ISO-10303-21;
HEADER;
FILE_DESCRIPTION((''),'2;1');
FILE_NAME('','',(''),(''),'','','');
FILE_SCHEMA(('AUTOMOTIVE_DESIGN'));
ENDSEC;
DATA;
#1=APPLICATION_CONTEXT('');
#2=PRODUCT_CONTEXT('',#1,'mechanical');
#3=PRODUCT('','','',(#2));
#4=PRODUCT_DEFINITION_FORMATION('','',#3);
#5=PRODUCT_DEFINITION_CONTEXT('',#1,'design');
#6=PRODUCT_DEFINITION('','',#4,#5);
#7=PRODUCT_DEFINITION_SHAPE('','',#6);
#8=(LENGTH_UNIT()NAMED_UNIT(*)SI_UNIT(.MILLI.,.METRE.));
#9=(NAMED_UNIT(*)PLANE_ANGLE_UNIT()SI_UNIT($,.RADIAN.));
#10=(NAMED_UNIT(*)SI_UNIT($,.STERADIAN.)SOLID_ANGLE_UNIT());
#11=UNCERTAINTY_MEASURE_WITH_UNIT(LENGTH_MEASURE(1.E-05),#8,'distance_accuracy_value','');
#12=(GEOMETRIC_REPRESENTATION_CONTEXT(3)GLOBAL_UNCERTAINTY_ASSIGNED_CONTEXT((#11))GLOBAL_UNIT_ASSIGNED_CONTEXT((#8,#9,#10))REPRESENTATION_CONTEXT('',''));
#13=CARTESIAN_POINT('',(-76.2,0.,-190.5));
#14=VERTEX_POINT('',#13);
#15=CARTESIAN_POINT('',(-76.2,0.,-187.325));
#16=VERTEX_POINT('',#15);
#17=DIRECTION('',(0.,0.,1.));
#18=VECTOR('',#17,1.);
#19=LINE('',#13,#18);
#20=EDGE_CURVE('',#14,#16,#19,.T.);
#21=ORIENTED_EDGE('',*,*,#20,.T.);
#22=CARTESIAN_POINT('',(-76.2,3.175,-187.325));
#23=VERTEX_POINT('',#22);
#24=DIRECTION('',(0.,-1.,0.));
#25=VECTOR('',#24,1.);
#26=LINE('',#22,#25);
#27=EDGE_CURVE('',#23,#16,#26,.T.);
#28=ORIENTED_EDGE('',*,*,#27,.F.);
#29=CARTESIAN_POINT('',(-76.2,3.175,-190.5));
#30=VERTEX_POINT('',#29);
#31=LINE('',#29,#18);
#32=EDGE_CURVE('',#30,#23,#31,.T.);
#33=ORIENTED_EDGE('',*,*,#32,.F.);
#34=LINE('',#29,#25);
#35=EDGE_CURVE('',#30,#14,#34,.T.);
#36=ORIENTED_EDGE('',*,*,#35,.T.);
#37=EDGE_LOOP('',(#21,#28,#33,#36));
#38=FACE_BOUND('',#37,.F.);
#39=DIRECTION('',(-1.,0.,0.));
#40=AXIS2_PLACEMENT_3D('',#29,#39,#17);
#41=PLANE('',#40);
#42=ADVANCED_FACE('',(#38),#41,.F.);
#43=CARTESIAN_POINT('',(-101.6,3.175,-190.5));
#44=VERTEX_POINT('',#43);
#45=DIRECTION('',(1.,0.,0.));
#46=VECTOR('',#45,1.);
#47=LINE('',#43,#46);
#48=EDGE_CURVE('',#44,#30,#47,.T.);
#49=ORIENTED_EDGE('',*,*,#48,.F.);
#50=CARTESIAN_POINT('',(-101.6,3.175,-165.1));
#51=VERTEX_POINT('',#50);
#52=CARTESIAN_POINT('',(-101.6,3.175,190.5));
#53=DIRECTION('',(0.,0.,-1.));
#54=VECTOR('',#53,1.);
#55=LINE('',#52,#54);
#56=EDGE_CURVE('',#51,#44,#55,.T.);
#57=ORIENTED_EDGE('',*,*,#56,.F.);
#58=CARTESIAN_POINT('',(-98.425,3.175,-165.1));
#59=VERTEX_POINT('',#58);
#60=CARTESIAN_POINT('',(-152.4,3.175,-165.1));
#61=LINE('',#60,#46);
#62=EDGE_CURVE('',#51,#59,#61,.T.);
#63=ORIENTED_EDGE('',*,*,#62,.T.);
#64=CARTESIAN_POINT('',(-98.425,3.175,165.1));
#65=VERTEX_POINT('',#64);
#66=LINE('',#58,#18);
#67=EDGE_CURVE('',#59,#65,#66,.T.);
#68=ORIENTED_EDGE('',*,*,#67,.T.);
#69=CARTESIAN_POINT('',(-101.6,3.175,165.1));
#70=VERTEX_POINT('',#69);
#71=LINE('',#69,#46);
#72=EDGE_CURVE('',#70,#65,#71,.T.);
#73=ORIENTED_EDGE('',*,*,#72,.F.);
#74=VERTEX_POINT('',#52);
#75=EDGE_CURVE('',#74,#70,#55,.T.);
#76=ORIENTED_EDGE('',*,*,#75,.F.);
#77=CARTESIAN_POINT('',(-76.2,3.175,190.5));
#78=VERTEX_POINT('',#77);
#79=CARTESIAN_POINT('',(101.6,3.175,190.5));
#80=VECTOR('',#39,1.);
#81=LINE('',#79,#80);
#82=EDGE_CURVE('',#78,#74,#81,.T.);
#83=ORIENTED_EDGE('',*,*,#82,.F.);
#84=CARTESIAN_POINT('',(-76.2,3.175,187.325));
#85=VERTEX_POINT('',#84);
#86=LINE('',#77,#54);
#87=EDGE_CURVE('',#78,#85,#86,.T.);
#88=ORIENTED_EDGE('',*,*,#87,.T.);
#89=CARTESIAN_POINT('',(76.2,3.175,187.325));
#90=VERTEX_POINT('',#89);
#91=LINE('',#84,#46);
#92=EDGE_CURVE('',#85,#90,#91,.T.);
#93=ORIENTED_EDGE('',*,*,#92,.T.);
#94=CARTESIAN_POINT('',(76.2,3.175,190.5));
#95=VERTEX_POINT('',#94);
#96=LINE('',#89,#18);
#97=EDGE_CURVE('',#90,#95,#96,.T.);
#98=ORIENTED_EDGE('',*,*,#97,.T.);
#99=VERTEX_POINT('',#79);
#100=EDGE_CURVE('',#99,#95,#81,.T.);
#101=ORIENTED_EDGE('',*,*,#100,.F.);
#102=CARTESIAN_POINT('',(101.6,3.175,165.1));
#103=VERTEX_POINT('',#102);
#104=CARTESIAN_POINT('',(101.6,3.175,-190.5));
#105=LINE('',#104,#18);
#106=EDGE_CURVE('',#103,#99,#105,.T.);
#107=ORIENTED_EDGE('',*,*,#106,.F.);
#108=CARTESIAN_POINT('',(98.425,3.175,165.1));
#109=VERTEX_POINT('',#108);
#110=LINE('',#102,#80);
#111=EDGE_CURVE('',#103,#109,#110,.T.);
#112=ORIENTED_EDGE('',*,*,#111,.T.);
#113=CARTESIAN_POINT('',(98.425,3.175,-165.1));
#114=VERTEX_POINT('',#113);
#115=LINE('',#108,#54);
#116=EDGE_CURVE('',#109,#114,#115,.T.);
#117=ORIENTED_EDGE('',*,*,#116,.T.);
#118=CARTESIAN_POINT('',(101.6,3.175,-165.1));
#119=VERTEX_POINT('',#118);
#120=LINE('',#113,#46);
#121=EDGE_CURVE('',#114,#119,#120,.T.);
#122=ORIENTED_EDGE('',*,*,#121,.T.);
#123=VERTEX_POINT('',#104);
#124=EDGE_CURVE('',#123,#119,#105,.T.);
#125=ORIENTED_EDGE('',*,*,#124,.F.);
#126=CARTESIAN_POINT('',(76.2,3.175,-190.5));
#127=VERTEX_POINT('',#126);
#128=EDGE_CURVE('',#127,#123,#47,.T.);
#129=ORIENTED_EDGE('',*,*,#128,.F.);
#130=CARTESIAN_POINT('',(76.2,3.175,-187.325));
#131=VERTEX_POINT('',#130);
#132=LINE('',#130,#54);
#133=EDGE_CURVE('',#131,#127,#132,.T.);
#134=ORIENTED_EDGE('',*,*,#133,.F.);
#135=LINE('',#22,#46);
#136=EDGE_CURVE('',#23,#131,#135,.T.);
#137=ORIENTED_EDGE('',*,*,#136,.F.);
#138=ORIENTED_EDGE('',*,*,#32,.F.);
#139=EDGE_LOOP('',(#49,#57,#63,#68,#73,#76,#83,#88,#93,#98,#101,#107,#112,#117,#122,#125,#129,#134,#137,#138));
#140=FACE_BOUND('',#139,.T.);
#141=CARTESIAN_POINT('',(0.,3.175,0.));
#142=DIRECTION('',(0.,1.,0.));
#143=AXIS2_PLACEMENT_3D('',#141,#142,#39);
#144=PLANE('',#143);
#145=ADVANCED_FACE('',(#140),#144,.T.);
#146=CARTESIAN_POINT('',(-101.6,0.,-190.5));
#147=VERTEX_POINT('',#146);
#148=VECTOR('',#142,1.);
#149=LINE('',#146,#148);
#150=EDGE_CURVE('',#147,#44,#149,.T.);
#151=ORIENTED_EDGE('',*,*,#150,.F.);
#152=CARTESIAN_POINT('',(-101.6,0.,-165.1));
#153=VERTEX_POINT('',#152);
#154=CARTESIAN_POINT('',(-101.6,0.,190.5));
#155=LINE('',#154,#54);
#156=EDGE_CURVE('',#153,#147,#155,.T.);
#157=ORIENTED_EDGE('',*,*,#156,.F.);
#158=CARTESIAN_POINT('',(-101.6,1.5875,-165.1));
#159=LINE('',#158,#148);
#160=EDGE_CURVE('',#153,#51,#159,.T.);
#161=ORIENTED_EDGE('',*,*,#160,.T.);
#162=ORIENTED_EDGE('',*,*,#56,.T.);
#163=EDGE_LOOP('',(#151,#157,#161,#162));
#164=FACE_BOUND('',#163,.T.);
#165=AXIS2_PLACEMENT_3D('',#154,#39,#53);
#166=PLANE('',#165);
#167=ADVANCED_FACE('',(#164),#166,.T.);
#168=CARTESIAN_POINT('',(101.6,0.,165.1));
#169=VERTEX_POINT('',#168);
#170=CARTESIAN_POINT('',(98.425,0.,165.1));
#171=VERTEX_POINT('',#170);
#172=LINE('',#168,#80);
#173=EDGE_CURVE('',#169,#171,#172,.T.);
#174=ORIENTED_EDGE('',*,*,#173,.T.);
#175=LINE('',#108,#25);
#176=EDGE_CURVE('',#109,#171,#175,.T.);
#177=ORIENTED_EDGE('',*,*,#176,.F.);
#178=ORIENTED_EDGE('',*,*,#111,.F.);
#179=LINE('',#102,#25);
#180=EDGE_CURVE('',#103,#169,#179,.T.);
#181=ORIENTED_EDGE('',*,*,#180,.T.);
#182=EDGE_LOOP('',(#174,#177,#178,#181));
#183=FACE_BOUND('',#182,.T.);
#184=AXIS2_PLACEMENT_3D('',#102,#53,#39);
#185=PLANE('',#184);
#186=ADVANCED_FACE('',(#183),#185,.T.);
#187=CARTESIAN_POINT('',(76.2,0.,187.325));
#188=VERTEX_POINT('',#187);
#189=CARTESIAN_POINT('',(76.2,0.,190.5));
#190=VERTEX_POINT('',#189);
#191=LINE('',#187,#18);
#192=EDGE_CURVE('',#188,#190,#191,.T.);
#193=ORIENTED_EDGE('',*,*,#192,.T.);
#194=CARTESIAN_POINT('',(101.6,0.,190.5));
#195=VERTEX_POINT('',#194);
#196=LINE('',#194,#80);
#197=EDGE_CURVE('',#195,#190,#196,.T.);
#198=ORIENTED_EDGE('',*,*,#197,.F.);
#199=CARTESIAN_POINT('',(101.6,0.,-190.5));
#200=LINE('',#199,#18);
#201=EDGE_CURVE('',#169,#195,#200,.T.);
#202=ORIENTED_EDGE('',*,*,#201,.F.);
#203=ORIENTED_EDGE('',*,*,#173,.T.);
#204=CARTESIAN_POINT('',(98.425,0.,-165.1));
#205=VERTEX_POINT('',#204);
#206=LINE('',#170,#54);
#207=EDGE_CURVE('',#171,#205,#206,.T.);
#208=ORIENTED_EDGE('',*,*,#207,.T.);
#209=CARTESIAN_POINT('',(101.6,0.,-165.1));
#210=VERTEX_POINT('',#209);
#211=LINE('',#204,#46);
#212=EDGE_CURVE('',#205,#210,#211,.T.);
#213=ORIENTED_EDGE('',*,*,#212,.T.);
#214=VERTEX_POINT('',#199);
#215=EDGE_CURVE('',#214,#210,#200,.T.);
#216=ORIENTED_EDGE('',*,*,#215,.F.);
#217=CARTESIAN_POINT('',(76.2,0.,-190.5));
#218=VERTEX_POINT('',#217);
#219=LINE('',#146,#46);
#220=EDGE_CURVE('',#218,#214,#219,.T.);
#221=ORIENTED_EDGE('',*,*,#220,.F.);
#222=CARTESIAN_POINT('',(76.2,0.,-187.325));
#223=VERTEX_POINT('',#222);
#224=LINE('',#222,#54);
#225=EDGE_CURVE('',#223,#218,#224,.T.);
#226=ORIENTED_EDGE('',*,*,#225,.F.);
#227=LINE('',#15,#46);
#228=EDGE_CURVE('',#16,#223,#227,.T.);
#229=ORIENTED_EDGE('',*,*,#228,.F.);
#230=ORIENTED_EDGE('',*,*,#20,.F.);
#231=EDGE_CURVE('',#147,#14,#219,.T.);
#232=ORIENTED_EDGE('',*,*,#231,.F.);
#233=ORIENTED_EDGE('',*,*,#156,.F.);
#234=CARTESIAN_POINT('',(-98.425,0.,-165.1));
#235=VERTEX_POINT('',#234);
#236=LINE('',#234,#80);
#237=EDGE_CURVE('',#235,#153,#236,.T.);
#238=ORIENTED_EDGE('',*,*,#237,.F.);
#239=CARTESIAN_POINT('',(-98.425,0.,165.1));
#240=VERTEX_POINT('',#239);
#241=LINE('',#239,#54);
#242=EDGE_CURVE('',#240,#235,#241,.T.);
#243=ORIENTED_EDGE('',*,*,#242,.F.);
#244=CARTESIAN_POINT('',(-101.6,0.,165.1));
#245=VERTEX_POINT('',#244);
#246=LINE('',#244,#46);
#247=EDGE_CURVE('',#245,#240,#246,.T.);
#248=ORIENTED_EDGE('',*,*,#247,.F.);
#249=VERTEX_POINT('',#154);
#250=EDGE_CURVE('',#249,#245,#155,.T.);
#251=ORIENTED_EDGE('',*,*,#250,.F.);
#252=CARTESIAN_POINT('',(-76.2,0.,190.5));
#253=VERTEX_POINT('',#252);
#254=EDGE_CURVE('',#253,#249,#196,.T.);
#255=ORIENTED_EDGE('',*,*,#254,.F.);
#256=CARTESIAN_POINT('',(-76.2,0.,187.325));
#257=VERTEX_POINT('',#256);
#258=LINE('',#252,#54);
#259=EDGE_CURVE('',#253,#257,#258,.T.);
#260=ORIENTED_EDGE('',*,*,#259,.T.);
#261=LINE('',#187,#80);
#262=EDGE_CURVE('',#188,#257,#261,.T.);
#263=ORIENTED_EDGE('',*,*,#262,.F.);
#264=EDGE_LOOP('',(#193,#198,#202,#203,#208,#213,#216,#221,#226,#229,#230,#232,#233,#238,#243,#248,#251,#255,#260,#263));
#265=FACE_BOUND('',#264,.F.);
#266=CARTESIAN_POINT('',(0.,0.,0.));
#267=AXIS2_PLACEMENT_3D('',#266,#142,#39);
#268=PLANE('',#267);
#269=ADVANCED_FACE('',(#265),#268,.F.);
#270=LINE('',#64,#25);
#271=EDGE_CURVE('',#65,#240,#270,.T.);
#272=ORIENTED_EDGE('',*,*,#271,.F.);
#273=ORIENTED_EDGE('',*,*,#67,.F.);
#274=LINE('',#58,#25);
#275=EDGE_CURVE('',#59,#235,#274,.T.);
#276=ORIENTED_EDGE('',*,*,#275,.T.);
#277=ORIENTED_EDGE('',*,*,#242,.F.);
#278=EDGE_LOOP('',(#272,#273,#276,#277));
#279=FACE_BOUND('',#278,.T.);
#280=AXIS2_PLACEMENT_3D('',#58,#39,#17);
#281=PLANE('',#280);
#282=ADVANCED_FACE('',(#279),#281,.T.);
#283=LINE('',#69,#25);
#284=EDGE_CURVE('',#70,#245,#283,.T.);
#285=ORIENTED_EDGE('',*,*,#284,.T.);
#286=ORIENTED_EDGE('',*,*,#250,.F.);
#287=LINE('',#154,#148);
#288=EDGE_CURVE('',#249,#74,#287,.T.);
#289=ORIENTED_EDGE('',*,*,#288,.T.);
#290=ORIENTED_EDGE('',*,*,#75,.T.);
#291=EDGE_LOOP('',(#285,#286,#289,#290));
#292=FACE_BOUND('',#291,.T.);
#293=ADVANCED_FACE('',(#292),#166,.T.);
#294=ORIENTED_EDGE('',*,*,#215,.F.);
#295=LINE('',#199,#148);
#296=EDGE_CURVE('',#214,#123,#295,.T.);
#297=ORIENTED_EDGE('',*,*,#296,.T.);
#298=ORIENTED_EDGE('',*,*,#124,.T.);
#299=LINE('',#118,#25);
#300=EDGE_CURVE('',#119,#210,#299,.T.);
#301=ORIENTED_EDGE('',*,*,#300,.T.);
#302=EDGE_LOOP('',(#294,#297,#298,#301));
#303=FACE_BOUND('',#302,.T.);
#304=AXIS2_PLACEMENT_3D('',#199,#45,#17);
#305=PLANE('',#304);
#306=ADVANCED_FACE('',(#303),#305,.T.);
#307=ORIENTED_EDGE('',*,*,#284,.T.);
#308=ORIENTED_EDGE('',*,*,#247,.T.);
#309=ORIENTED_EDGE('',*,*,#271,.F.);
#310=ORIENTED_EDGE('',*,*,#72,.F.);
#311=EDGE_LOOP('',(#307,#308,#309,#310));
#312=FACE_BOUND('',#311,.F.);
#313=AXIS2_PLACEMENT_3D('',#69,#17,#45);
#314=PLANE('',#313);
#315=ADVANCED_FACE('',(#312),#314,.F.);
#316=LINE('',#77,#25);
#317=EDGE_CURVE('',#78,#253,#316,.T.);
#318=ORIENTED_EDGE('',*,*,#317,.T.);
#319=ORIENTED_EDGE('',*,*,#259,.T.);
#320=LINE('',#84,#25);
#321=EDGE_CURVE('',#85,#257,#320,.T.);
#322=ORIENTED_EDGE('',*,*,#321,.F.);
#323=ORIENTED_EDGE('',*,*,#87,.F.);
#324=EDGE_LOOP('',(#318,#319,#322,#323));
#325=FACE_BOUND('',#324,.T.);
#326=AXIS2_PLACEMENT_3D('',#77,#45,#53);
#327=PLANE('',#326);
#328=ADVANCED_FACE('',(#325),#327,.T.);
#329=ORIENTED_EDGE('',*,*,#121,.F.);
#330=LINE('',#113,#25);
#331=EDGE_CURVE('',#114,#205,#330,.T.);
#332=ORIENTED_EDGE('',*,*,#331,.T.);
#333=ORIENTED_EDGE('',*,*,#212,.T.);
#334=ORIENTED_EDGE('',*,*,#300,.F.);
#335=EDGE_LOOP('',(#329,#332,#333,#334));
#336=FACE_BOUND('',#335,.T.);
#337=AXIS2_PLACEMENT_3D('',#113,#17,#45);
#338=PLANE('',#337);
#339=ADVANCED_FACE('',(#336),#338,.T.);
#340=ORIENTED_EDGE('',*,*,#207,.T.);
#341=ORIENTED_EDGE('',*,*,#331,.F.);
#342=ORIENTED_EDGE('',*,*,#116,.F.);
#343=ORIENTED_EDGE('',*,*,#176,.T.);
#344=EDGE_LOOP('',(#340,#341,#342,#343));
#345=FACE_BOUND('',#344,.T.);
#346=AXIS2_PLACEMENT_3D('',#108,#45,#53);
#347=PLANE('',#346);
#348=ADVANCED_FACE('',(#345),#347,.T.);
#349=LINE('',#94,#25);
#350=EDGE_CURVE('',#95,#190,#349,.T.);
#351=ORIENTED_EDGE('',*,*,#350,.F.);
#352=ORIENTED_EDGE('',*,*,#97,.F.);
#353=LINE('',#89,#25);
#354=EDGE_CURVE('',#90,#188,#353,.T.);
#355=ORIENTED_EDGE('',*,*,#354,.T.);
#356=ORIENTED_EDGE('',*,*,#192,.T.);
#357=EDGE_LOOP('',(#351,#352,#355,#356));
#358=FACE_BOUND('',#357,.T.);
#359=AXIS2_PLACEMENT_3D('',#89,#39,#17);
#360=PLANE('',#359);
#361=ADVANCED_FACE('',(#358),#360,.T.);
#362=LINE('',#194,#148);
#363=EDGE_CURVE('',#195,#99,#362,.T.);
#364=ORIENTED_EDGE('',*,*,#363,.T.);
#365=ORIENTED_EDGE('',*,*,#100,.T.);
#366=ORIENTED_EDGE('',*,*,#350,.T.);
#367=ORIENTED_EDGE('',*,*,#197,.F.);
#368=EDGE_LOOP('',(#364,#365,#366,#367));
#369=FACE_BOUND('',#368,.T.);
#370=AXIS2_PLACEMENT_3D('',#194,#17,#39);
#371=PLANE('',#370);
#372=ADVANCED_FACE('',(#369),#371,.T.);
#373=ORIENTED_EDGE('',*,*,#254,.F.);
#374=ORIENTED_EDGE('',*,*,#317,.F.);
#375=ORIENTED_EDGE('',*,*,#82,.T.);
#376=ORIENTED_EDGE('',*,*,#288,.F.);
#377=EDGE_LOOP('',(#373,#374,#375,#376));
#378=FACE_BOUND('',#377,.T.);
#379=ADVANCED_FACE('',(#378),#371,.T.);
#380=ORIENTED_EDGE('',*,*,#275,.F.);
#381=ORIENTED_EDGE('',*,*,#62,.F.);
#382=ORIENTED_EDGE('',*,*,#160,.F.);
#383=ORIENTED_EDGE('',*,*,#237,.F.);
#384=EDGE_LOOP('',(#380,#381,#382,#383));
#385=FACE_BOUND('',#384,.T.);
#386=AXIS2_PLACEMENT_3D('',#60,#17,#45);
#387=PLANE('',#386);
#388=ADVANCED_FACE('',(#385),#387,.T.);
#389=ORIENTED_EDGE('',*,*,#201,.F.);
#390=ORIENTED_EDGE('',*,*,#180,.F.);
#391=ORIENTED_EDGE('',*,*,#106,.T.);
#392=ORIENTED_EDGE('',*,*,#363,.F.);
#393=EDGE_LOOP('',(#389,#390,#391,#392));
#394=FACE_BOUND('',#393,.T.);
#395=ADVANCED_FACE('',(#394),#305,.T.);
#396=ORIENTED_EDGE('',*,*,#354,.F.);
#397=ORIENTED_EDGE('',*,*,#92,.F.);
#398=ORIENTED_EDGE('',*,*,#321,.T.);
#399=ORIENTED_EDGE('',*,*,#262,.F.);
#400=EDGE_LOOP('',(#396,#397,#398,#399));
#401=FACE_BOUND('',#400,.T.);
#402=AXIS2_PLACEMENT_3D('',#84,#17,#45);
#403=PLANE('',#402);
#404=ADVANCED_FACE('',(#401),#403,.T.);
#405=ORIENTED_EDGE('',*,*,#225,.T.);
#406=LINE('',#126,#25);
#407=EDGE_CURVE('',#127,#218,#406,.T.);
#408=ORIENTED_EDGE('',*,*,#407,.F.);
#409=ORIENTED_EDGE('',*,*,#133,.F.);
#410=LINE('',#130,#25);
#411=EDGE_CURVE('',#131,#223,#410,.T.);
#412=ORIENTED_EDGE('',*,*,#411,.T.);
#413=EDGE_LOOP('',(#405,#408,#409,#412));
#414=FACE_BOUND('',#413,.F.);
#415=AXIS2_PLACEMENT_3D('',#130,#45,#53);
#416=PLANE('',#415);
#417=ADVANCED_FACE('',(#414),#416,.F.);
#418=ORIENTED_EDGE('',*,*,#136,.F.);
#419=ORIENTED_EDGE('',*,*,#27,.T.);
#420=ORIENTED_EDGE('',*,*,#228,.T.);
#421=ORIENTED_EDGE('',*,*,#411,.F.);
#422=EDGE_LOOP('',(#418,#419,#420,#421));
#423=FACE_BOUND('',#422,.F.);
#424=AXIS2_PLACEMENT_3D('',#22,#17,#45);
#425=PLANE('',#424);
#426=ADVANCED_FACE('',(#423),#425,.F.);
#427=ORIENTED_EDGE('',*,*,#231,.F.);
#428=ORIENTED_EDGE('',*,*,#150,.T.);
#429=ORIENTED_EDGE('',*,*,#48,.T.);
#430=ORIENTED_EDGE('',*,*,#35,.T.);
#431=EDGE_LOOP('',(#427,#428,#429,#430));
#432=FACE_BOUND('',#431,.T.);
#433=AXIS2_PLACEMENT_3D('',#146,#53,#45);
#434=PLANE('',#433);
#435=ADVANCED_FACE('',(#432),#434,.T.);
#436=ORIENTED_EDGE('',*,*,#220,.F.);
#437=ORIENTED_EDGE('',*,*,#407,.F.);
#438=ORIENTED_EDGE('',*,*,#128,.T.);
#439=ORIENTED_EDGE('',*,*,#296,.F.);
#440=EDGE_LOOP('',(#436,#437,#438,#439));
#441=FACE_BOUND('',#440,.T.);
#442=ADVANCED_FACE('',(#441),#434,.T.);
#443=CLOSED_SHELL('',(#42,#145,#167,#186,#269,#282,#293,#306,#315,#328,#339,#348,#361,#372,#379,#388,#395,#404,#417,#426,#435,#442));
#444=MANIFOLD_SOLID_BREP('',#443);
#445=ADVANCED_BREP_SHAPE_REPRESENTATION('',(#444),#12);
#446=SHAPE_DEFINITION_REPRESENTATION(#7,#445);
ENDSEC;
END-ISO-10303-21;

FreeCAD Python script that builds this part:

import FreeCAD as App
import Part
import Sketcher
Q = App.Units.Quantity

doc = App.newDocument("Part")
body = doc.addObject("PartDesign::Body", "Body")

# Sketch on XZ plane
sketch1 = doc.addObject("Sketcher::SketchObject", "Sketch")
body.addObject(sketch1)
sketch1.AttachmentSupport = (doc.XZ_Plane, [""])
sketch1.MapMode = "FlatFace"
sketch1.addGeometry([
    Part.LineSegment(App.Vector(-102, 190, 0), App.Vector(102, 190, 0)),
    Part.LineSegment(App.Vector(102, 190, 0), App.Vector(102, -190, 0)),
    Part.LineSegment(App.Vector(102, -190, 0), App.Vector(-102, -190, 0)),
    Part.LineSegment(App.Vector(-102, -190, 0), App.Vector(-102, 190, 0)),
], False)
sketch1.addConstraint([
    Sketcher.Constraint("Coincident", 0, 2, 1, 1),
    Sketcher.Constraint("Coincident", 1, 2, 2, 1),
    Sketcher.Constraint("Coincident", 2, 2, 3, 1),
    Sketcher.Constraint("Coincident", 3, 2, 0, 1),
    Sketcher.Constraint("Horizontal", 0),
    Sketcher.Constraint("Vertical", 1),
    Sketcher.Constraint("Horizontal", 2),
    Sketcher.Constraint("Vertical", 3),
    Sketcher.Constraint("Symmetric", 0, 2, 2, 2, -1, 1),
    Sketcher.Constraint("DistanceX", 0, 1, 0, 2, Q("8 in")),
    Sketcher.Constraint("DistanceY", 1, 2, 1, 1, Q("15 in")),
])
pad1 = doc.addObject("PartDesign::Pad", "Pad")
body.addObject(pad1)
pad1.Profile = sketch1
pad1.Length = Q("0.125 in")
pad1.Reversed = True

# Sketch on XZ plane
sketch2 = doc.addObject("Sketcher::SketchObject", "Sketch001")
body.addObject(sketch2)
sketch2.AttachmentSupport = (doc.XZ_Plane, [""])
sketch2.MapMode = "FlatFace"
sketch2.AttachmentOffset = App.Placement(App.Vector(0, 0, -0.125 * 25.4), App.Rotation())
sketch2.addGeometry([
    Part.LineSegment(App.Vector(-76.2, 187.3, 0), App.Vector(-76.2, 190.5, 0)),  # 0
    Part.LineSegment(App.Vector(-76.2, 190.5, 0), App.Vector(66.7, 208, 0)),  # 1
    Part.LineSegment(App.Vector(66.7, 208, 0), App.Vector(76.2, 190.5, 0)),  # 2
    Part.LineSegment(App.Vector(76.2, 190.5, 0), App.Vector(76.2, 187.3, 0)),  # 3
    Part.LineSegment(App.Vector(76.2, 187.3, 0), App.Vector(-76.2, 187.3, 0)),  # 4
    Part.LineSegment(App.Vector(-173, 100, 0), App.Vector(-101.6, 165.1, 0)),  # 5
    Part.LineSegment(App.Vector(-101.6, 165.1, 0), App.Vector(-98.4, 165.1, 0)),  # 6
    Part.LineSegment(App.Vector(-98.4, 165.1, 0), App.Vector(-98.4, -165.1, 0)),  # 7
    Part.LineSegment(App.Vector(-98.4, -165.1, 0), App.Vector(-152.4, -165.1, 0)),  # 8
    Part.LineSegment(App.Vector(-152.4, -165.1, 0), App.Vector(-173, 100, 0)),  # 9
    Part.LineSegment(App.Vector(76.2, -190.5, 0), App.Vector(-76.2, -190.5, 0)),  # 10
    Part.LineSegment(App.Vector(-76.2, -190.5, 0), App.Vector(-76.2, -187.3, 0)),  # 11
    Part.LineSegment(App.Vector(-76.2, -187.3, 0), App.Vector(76.2, -187.3, 0)),  # 12
    Part.LineSegment(App.Vector(76.2, -187.3, 0), App.Vector(76.2, -190.5, 0)),  # 13
    Part.LineSegment(App.Vector(98.4, 165.1, 0), App.Vector(101.6, 165.1, 0)),  # 14
    Part.LineSegment(App.Vector(101.6, 165.1, 0), App.Vector(101.6, -165.1, 0)),  # 15
    Part.LineSegment(App.Vector(101.6, -165.1, 0), App.Vector(98.4, -165.1, 0)),  # 16
    Part.LineSegment(App.Vector(98.4, -165.1, 0), App.Vector(98.4, 165.1, 0)),  # 17
], False)
sketch2.addConstraint([
    Sketcher.Constraint("Coincident", 0, 2, 1, 1),
    Sketcher.Constraint("Coincident", 1, 2, 2, 1),
    Sketcher.Constraint("Coincident", 2, 2, 3, 1),
    Sketcher.Constraint("Coincident", 3, 2, 4, 1),
    Sketcher.Constraint("Coincident", 4, 2, 0, 1),
    Sketcher.Constraint("Coincident", 5, 2, 6, 1),
    Sketcher.Constraint("Coincident", 6, 2, 7, 1),
    Sketcher.Constraint("Coincident", 7, 2, 8, 1),
    Sketcher.Constraint("Coincident", 8, 2, 9, 1),
    Sketcher.Constraint("Coincident", 9, 2, 5, 1),
    Sketcher.Constraint("Coincident", 10, 2, 11, 1),
    Sketcher.Constraint("Coincident", 11, 2, 12, 1),
    Sketcher.Constraint("Coincident", 12, 2, 13, 1),
    Sketcher.Constraint("Coincident", 13, 2, 10, 1),
    Sketcher.Constraint("Coincident", 14, 2, 15, 1),
    Sketcher.Constraint("Coincident", 15, 2, 16, 1),
    Sketcher.Constraint("Coincident", 16, 2, 17, 1),
    Sketcher.Constraint("Coincident", 17, 2, 14, 1),
    Sketcher.Constraint("Vertical", 0),
    Sketcher.Constraint("Vertical", 3),
    Sketcher.Constraint("Horizontal", 4),
    Sketcher.Constraint("Horizontal", 6),
    Sketcher.Constraint("Vertical", 7),
    Sketcher.Constraint("Horizontal", 8),
    Sketcher.Constraint("Horizontal", 10),
    Sketcher.Constraint("Vertical", 11),
    Sketcher.Constraint("Horizontal", 12),
    Sketcher.Constraint("Vertical", 13),
    Sketcher.Constraint("Horizontal", 14),
    Sketcher.Constraint("Vertical", 15),
    Sketcher.Constraint("Horizontal", 16),
    Sketcher.Constraint("Vertical", 17),
    Sketcher.Constraint("Symmetric", 2, 2, 10, 2, -1, 1),
    Sketcher.Constraint("Symmetric", 4, 2, 12, 2, -1, 1),
    Sketcher.Constraint("Symmetric", 5, 2, 15, 2, -1, 1),
    Sketcher.Constraint("Symmetric", 7, 2, 17, 2, -1, 1),
    Sketcher.Constraint("Symmetric", 0, 2, 2, 2, -2),
    Sketcher.Constraint("Horizontal", 6, 2, 14, 2),
    Sketcher.Constraint("Equal", 16, 0),
    Sketcher.Constraint("DistanceX", 0, 2, -1, 1, Q("3 in")),
    Sketcher.Constraint("DistanceX", 5, 2, 4, 2, Q("1 in")),
    Sketcher.Constraint("DistanceY", 5, 2, 0, 2, Q("1 in")),
    Sketcher.Constraint("DistanceX", 8, 2, 4, 2, Q("3 in")),
    Sketcher.Constraint("DistanceY", 7, 2, 7, 1, Q("13 in")),
    Sketcher.Constraint("DistanceX", 6, 2, 1, 2, Q("6.5 in")),
    Sketcher.Constraint("DistanceX", 6, 1, 6, 2, Q("0.125 in")),
    Sketcher.Constraint("Angle", 2, Q("-61.3895 deg")),
    Sketcher.Constraint("Angle", 9, Q("94.4512 deg")),
    Sketcher.Constraint("DistanceY", 9, 2, 1, 2, Q("4.25 in")),
])
pocket1 = doc.addObject("PartDesign::Pocket", "Pocket")
body.addObject(pocket1)
pocket1.Profile = sketch2
pocket1.Length = Q("0.125 in")
pocket1.Reversed = True

doc.recompute()
